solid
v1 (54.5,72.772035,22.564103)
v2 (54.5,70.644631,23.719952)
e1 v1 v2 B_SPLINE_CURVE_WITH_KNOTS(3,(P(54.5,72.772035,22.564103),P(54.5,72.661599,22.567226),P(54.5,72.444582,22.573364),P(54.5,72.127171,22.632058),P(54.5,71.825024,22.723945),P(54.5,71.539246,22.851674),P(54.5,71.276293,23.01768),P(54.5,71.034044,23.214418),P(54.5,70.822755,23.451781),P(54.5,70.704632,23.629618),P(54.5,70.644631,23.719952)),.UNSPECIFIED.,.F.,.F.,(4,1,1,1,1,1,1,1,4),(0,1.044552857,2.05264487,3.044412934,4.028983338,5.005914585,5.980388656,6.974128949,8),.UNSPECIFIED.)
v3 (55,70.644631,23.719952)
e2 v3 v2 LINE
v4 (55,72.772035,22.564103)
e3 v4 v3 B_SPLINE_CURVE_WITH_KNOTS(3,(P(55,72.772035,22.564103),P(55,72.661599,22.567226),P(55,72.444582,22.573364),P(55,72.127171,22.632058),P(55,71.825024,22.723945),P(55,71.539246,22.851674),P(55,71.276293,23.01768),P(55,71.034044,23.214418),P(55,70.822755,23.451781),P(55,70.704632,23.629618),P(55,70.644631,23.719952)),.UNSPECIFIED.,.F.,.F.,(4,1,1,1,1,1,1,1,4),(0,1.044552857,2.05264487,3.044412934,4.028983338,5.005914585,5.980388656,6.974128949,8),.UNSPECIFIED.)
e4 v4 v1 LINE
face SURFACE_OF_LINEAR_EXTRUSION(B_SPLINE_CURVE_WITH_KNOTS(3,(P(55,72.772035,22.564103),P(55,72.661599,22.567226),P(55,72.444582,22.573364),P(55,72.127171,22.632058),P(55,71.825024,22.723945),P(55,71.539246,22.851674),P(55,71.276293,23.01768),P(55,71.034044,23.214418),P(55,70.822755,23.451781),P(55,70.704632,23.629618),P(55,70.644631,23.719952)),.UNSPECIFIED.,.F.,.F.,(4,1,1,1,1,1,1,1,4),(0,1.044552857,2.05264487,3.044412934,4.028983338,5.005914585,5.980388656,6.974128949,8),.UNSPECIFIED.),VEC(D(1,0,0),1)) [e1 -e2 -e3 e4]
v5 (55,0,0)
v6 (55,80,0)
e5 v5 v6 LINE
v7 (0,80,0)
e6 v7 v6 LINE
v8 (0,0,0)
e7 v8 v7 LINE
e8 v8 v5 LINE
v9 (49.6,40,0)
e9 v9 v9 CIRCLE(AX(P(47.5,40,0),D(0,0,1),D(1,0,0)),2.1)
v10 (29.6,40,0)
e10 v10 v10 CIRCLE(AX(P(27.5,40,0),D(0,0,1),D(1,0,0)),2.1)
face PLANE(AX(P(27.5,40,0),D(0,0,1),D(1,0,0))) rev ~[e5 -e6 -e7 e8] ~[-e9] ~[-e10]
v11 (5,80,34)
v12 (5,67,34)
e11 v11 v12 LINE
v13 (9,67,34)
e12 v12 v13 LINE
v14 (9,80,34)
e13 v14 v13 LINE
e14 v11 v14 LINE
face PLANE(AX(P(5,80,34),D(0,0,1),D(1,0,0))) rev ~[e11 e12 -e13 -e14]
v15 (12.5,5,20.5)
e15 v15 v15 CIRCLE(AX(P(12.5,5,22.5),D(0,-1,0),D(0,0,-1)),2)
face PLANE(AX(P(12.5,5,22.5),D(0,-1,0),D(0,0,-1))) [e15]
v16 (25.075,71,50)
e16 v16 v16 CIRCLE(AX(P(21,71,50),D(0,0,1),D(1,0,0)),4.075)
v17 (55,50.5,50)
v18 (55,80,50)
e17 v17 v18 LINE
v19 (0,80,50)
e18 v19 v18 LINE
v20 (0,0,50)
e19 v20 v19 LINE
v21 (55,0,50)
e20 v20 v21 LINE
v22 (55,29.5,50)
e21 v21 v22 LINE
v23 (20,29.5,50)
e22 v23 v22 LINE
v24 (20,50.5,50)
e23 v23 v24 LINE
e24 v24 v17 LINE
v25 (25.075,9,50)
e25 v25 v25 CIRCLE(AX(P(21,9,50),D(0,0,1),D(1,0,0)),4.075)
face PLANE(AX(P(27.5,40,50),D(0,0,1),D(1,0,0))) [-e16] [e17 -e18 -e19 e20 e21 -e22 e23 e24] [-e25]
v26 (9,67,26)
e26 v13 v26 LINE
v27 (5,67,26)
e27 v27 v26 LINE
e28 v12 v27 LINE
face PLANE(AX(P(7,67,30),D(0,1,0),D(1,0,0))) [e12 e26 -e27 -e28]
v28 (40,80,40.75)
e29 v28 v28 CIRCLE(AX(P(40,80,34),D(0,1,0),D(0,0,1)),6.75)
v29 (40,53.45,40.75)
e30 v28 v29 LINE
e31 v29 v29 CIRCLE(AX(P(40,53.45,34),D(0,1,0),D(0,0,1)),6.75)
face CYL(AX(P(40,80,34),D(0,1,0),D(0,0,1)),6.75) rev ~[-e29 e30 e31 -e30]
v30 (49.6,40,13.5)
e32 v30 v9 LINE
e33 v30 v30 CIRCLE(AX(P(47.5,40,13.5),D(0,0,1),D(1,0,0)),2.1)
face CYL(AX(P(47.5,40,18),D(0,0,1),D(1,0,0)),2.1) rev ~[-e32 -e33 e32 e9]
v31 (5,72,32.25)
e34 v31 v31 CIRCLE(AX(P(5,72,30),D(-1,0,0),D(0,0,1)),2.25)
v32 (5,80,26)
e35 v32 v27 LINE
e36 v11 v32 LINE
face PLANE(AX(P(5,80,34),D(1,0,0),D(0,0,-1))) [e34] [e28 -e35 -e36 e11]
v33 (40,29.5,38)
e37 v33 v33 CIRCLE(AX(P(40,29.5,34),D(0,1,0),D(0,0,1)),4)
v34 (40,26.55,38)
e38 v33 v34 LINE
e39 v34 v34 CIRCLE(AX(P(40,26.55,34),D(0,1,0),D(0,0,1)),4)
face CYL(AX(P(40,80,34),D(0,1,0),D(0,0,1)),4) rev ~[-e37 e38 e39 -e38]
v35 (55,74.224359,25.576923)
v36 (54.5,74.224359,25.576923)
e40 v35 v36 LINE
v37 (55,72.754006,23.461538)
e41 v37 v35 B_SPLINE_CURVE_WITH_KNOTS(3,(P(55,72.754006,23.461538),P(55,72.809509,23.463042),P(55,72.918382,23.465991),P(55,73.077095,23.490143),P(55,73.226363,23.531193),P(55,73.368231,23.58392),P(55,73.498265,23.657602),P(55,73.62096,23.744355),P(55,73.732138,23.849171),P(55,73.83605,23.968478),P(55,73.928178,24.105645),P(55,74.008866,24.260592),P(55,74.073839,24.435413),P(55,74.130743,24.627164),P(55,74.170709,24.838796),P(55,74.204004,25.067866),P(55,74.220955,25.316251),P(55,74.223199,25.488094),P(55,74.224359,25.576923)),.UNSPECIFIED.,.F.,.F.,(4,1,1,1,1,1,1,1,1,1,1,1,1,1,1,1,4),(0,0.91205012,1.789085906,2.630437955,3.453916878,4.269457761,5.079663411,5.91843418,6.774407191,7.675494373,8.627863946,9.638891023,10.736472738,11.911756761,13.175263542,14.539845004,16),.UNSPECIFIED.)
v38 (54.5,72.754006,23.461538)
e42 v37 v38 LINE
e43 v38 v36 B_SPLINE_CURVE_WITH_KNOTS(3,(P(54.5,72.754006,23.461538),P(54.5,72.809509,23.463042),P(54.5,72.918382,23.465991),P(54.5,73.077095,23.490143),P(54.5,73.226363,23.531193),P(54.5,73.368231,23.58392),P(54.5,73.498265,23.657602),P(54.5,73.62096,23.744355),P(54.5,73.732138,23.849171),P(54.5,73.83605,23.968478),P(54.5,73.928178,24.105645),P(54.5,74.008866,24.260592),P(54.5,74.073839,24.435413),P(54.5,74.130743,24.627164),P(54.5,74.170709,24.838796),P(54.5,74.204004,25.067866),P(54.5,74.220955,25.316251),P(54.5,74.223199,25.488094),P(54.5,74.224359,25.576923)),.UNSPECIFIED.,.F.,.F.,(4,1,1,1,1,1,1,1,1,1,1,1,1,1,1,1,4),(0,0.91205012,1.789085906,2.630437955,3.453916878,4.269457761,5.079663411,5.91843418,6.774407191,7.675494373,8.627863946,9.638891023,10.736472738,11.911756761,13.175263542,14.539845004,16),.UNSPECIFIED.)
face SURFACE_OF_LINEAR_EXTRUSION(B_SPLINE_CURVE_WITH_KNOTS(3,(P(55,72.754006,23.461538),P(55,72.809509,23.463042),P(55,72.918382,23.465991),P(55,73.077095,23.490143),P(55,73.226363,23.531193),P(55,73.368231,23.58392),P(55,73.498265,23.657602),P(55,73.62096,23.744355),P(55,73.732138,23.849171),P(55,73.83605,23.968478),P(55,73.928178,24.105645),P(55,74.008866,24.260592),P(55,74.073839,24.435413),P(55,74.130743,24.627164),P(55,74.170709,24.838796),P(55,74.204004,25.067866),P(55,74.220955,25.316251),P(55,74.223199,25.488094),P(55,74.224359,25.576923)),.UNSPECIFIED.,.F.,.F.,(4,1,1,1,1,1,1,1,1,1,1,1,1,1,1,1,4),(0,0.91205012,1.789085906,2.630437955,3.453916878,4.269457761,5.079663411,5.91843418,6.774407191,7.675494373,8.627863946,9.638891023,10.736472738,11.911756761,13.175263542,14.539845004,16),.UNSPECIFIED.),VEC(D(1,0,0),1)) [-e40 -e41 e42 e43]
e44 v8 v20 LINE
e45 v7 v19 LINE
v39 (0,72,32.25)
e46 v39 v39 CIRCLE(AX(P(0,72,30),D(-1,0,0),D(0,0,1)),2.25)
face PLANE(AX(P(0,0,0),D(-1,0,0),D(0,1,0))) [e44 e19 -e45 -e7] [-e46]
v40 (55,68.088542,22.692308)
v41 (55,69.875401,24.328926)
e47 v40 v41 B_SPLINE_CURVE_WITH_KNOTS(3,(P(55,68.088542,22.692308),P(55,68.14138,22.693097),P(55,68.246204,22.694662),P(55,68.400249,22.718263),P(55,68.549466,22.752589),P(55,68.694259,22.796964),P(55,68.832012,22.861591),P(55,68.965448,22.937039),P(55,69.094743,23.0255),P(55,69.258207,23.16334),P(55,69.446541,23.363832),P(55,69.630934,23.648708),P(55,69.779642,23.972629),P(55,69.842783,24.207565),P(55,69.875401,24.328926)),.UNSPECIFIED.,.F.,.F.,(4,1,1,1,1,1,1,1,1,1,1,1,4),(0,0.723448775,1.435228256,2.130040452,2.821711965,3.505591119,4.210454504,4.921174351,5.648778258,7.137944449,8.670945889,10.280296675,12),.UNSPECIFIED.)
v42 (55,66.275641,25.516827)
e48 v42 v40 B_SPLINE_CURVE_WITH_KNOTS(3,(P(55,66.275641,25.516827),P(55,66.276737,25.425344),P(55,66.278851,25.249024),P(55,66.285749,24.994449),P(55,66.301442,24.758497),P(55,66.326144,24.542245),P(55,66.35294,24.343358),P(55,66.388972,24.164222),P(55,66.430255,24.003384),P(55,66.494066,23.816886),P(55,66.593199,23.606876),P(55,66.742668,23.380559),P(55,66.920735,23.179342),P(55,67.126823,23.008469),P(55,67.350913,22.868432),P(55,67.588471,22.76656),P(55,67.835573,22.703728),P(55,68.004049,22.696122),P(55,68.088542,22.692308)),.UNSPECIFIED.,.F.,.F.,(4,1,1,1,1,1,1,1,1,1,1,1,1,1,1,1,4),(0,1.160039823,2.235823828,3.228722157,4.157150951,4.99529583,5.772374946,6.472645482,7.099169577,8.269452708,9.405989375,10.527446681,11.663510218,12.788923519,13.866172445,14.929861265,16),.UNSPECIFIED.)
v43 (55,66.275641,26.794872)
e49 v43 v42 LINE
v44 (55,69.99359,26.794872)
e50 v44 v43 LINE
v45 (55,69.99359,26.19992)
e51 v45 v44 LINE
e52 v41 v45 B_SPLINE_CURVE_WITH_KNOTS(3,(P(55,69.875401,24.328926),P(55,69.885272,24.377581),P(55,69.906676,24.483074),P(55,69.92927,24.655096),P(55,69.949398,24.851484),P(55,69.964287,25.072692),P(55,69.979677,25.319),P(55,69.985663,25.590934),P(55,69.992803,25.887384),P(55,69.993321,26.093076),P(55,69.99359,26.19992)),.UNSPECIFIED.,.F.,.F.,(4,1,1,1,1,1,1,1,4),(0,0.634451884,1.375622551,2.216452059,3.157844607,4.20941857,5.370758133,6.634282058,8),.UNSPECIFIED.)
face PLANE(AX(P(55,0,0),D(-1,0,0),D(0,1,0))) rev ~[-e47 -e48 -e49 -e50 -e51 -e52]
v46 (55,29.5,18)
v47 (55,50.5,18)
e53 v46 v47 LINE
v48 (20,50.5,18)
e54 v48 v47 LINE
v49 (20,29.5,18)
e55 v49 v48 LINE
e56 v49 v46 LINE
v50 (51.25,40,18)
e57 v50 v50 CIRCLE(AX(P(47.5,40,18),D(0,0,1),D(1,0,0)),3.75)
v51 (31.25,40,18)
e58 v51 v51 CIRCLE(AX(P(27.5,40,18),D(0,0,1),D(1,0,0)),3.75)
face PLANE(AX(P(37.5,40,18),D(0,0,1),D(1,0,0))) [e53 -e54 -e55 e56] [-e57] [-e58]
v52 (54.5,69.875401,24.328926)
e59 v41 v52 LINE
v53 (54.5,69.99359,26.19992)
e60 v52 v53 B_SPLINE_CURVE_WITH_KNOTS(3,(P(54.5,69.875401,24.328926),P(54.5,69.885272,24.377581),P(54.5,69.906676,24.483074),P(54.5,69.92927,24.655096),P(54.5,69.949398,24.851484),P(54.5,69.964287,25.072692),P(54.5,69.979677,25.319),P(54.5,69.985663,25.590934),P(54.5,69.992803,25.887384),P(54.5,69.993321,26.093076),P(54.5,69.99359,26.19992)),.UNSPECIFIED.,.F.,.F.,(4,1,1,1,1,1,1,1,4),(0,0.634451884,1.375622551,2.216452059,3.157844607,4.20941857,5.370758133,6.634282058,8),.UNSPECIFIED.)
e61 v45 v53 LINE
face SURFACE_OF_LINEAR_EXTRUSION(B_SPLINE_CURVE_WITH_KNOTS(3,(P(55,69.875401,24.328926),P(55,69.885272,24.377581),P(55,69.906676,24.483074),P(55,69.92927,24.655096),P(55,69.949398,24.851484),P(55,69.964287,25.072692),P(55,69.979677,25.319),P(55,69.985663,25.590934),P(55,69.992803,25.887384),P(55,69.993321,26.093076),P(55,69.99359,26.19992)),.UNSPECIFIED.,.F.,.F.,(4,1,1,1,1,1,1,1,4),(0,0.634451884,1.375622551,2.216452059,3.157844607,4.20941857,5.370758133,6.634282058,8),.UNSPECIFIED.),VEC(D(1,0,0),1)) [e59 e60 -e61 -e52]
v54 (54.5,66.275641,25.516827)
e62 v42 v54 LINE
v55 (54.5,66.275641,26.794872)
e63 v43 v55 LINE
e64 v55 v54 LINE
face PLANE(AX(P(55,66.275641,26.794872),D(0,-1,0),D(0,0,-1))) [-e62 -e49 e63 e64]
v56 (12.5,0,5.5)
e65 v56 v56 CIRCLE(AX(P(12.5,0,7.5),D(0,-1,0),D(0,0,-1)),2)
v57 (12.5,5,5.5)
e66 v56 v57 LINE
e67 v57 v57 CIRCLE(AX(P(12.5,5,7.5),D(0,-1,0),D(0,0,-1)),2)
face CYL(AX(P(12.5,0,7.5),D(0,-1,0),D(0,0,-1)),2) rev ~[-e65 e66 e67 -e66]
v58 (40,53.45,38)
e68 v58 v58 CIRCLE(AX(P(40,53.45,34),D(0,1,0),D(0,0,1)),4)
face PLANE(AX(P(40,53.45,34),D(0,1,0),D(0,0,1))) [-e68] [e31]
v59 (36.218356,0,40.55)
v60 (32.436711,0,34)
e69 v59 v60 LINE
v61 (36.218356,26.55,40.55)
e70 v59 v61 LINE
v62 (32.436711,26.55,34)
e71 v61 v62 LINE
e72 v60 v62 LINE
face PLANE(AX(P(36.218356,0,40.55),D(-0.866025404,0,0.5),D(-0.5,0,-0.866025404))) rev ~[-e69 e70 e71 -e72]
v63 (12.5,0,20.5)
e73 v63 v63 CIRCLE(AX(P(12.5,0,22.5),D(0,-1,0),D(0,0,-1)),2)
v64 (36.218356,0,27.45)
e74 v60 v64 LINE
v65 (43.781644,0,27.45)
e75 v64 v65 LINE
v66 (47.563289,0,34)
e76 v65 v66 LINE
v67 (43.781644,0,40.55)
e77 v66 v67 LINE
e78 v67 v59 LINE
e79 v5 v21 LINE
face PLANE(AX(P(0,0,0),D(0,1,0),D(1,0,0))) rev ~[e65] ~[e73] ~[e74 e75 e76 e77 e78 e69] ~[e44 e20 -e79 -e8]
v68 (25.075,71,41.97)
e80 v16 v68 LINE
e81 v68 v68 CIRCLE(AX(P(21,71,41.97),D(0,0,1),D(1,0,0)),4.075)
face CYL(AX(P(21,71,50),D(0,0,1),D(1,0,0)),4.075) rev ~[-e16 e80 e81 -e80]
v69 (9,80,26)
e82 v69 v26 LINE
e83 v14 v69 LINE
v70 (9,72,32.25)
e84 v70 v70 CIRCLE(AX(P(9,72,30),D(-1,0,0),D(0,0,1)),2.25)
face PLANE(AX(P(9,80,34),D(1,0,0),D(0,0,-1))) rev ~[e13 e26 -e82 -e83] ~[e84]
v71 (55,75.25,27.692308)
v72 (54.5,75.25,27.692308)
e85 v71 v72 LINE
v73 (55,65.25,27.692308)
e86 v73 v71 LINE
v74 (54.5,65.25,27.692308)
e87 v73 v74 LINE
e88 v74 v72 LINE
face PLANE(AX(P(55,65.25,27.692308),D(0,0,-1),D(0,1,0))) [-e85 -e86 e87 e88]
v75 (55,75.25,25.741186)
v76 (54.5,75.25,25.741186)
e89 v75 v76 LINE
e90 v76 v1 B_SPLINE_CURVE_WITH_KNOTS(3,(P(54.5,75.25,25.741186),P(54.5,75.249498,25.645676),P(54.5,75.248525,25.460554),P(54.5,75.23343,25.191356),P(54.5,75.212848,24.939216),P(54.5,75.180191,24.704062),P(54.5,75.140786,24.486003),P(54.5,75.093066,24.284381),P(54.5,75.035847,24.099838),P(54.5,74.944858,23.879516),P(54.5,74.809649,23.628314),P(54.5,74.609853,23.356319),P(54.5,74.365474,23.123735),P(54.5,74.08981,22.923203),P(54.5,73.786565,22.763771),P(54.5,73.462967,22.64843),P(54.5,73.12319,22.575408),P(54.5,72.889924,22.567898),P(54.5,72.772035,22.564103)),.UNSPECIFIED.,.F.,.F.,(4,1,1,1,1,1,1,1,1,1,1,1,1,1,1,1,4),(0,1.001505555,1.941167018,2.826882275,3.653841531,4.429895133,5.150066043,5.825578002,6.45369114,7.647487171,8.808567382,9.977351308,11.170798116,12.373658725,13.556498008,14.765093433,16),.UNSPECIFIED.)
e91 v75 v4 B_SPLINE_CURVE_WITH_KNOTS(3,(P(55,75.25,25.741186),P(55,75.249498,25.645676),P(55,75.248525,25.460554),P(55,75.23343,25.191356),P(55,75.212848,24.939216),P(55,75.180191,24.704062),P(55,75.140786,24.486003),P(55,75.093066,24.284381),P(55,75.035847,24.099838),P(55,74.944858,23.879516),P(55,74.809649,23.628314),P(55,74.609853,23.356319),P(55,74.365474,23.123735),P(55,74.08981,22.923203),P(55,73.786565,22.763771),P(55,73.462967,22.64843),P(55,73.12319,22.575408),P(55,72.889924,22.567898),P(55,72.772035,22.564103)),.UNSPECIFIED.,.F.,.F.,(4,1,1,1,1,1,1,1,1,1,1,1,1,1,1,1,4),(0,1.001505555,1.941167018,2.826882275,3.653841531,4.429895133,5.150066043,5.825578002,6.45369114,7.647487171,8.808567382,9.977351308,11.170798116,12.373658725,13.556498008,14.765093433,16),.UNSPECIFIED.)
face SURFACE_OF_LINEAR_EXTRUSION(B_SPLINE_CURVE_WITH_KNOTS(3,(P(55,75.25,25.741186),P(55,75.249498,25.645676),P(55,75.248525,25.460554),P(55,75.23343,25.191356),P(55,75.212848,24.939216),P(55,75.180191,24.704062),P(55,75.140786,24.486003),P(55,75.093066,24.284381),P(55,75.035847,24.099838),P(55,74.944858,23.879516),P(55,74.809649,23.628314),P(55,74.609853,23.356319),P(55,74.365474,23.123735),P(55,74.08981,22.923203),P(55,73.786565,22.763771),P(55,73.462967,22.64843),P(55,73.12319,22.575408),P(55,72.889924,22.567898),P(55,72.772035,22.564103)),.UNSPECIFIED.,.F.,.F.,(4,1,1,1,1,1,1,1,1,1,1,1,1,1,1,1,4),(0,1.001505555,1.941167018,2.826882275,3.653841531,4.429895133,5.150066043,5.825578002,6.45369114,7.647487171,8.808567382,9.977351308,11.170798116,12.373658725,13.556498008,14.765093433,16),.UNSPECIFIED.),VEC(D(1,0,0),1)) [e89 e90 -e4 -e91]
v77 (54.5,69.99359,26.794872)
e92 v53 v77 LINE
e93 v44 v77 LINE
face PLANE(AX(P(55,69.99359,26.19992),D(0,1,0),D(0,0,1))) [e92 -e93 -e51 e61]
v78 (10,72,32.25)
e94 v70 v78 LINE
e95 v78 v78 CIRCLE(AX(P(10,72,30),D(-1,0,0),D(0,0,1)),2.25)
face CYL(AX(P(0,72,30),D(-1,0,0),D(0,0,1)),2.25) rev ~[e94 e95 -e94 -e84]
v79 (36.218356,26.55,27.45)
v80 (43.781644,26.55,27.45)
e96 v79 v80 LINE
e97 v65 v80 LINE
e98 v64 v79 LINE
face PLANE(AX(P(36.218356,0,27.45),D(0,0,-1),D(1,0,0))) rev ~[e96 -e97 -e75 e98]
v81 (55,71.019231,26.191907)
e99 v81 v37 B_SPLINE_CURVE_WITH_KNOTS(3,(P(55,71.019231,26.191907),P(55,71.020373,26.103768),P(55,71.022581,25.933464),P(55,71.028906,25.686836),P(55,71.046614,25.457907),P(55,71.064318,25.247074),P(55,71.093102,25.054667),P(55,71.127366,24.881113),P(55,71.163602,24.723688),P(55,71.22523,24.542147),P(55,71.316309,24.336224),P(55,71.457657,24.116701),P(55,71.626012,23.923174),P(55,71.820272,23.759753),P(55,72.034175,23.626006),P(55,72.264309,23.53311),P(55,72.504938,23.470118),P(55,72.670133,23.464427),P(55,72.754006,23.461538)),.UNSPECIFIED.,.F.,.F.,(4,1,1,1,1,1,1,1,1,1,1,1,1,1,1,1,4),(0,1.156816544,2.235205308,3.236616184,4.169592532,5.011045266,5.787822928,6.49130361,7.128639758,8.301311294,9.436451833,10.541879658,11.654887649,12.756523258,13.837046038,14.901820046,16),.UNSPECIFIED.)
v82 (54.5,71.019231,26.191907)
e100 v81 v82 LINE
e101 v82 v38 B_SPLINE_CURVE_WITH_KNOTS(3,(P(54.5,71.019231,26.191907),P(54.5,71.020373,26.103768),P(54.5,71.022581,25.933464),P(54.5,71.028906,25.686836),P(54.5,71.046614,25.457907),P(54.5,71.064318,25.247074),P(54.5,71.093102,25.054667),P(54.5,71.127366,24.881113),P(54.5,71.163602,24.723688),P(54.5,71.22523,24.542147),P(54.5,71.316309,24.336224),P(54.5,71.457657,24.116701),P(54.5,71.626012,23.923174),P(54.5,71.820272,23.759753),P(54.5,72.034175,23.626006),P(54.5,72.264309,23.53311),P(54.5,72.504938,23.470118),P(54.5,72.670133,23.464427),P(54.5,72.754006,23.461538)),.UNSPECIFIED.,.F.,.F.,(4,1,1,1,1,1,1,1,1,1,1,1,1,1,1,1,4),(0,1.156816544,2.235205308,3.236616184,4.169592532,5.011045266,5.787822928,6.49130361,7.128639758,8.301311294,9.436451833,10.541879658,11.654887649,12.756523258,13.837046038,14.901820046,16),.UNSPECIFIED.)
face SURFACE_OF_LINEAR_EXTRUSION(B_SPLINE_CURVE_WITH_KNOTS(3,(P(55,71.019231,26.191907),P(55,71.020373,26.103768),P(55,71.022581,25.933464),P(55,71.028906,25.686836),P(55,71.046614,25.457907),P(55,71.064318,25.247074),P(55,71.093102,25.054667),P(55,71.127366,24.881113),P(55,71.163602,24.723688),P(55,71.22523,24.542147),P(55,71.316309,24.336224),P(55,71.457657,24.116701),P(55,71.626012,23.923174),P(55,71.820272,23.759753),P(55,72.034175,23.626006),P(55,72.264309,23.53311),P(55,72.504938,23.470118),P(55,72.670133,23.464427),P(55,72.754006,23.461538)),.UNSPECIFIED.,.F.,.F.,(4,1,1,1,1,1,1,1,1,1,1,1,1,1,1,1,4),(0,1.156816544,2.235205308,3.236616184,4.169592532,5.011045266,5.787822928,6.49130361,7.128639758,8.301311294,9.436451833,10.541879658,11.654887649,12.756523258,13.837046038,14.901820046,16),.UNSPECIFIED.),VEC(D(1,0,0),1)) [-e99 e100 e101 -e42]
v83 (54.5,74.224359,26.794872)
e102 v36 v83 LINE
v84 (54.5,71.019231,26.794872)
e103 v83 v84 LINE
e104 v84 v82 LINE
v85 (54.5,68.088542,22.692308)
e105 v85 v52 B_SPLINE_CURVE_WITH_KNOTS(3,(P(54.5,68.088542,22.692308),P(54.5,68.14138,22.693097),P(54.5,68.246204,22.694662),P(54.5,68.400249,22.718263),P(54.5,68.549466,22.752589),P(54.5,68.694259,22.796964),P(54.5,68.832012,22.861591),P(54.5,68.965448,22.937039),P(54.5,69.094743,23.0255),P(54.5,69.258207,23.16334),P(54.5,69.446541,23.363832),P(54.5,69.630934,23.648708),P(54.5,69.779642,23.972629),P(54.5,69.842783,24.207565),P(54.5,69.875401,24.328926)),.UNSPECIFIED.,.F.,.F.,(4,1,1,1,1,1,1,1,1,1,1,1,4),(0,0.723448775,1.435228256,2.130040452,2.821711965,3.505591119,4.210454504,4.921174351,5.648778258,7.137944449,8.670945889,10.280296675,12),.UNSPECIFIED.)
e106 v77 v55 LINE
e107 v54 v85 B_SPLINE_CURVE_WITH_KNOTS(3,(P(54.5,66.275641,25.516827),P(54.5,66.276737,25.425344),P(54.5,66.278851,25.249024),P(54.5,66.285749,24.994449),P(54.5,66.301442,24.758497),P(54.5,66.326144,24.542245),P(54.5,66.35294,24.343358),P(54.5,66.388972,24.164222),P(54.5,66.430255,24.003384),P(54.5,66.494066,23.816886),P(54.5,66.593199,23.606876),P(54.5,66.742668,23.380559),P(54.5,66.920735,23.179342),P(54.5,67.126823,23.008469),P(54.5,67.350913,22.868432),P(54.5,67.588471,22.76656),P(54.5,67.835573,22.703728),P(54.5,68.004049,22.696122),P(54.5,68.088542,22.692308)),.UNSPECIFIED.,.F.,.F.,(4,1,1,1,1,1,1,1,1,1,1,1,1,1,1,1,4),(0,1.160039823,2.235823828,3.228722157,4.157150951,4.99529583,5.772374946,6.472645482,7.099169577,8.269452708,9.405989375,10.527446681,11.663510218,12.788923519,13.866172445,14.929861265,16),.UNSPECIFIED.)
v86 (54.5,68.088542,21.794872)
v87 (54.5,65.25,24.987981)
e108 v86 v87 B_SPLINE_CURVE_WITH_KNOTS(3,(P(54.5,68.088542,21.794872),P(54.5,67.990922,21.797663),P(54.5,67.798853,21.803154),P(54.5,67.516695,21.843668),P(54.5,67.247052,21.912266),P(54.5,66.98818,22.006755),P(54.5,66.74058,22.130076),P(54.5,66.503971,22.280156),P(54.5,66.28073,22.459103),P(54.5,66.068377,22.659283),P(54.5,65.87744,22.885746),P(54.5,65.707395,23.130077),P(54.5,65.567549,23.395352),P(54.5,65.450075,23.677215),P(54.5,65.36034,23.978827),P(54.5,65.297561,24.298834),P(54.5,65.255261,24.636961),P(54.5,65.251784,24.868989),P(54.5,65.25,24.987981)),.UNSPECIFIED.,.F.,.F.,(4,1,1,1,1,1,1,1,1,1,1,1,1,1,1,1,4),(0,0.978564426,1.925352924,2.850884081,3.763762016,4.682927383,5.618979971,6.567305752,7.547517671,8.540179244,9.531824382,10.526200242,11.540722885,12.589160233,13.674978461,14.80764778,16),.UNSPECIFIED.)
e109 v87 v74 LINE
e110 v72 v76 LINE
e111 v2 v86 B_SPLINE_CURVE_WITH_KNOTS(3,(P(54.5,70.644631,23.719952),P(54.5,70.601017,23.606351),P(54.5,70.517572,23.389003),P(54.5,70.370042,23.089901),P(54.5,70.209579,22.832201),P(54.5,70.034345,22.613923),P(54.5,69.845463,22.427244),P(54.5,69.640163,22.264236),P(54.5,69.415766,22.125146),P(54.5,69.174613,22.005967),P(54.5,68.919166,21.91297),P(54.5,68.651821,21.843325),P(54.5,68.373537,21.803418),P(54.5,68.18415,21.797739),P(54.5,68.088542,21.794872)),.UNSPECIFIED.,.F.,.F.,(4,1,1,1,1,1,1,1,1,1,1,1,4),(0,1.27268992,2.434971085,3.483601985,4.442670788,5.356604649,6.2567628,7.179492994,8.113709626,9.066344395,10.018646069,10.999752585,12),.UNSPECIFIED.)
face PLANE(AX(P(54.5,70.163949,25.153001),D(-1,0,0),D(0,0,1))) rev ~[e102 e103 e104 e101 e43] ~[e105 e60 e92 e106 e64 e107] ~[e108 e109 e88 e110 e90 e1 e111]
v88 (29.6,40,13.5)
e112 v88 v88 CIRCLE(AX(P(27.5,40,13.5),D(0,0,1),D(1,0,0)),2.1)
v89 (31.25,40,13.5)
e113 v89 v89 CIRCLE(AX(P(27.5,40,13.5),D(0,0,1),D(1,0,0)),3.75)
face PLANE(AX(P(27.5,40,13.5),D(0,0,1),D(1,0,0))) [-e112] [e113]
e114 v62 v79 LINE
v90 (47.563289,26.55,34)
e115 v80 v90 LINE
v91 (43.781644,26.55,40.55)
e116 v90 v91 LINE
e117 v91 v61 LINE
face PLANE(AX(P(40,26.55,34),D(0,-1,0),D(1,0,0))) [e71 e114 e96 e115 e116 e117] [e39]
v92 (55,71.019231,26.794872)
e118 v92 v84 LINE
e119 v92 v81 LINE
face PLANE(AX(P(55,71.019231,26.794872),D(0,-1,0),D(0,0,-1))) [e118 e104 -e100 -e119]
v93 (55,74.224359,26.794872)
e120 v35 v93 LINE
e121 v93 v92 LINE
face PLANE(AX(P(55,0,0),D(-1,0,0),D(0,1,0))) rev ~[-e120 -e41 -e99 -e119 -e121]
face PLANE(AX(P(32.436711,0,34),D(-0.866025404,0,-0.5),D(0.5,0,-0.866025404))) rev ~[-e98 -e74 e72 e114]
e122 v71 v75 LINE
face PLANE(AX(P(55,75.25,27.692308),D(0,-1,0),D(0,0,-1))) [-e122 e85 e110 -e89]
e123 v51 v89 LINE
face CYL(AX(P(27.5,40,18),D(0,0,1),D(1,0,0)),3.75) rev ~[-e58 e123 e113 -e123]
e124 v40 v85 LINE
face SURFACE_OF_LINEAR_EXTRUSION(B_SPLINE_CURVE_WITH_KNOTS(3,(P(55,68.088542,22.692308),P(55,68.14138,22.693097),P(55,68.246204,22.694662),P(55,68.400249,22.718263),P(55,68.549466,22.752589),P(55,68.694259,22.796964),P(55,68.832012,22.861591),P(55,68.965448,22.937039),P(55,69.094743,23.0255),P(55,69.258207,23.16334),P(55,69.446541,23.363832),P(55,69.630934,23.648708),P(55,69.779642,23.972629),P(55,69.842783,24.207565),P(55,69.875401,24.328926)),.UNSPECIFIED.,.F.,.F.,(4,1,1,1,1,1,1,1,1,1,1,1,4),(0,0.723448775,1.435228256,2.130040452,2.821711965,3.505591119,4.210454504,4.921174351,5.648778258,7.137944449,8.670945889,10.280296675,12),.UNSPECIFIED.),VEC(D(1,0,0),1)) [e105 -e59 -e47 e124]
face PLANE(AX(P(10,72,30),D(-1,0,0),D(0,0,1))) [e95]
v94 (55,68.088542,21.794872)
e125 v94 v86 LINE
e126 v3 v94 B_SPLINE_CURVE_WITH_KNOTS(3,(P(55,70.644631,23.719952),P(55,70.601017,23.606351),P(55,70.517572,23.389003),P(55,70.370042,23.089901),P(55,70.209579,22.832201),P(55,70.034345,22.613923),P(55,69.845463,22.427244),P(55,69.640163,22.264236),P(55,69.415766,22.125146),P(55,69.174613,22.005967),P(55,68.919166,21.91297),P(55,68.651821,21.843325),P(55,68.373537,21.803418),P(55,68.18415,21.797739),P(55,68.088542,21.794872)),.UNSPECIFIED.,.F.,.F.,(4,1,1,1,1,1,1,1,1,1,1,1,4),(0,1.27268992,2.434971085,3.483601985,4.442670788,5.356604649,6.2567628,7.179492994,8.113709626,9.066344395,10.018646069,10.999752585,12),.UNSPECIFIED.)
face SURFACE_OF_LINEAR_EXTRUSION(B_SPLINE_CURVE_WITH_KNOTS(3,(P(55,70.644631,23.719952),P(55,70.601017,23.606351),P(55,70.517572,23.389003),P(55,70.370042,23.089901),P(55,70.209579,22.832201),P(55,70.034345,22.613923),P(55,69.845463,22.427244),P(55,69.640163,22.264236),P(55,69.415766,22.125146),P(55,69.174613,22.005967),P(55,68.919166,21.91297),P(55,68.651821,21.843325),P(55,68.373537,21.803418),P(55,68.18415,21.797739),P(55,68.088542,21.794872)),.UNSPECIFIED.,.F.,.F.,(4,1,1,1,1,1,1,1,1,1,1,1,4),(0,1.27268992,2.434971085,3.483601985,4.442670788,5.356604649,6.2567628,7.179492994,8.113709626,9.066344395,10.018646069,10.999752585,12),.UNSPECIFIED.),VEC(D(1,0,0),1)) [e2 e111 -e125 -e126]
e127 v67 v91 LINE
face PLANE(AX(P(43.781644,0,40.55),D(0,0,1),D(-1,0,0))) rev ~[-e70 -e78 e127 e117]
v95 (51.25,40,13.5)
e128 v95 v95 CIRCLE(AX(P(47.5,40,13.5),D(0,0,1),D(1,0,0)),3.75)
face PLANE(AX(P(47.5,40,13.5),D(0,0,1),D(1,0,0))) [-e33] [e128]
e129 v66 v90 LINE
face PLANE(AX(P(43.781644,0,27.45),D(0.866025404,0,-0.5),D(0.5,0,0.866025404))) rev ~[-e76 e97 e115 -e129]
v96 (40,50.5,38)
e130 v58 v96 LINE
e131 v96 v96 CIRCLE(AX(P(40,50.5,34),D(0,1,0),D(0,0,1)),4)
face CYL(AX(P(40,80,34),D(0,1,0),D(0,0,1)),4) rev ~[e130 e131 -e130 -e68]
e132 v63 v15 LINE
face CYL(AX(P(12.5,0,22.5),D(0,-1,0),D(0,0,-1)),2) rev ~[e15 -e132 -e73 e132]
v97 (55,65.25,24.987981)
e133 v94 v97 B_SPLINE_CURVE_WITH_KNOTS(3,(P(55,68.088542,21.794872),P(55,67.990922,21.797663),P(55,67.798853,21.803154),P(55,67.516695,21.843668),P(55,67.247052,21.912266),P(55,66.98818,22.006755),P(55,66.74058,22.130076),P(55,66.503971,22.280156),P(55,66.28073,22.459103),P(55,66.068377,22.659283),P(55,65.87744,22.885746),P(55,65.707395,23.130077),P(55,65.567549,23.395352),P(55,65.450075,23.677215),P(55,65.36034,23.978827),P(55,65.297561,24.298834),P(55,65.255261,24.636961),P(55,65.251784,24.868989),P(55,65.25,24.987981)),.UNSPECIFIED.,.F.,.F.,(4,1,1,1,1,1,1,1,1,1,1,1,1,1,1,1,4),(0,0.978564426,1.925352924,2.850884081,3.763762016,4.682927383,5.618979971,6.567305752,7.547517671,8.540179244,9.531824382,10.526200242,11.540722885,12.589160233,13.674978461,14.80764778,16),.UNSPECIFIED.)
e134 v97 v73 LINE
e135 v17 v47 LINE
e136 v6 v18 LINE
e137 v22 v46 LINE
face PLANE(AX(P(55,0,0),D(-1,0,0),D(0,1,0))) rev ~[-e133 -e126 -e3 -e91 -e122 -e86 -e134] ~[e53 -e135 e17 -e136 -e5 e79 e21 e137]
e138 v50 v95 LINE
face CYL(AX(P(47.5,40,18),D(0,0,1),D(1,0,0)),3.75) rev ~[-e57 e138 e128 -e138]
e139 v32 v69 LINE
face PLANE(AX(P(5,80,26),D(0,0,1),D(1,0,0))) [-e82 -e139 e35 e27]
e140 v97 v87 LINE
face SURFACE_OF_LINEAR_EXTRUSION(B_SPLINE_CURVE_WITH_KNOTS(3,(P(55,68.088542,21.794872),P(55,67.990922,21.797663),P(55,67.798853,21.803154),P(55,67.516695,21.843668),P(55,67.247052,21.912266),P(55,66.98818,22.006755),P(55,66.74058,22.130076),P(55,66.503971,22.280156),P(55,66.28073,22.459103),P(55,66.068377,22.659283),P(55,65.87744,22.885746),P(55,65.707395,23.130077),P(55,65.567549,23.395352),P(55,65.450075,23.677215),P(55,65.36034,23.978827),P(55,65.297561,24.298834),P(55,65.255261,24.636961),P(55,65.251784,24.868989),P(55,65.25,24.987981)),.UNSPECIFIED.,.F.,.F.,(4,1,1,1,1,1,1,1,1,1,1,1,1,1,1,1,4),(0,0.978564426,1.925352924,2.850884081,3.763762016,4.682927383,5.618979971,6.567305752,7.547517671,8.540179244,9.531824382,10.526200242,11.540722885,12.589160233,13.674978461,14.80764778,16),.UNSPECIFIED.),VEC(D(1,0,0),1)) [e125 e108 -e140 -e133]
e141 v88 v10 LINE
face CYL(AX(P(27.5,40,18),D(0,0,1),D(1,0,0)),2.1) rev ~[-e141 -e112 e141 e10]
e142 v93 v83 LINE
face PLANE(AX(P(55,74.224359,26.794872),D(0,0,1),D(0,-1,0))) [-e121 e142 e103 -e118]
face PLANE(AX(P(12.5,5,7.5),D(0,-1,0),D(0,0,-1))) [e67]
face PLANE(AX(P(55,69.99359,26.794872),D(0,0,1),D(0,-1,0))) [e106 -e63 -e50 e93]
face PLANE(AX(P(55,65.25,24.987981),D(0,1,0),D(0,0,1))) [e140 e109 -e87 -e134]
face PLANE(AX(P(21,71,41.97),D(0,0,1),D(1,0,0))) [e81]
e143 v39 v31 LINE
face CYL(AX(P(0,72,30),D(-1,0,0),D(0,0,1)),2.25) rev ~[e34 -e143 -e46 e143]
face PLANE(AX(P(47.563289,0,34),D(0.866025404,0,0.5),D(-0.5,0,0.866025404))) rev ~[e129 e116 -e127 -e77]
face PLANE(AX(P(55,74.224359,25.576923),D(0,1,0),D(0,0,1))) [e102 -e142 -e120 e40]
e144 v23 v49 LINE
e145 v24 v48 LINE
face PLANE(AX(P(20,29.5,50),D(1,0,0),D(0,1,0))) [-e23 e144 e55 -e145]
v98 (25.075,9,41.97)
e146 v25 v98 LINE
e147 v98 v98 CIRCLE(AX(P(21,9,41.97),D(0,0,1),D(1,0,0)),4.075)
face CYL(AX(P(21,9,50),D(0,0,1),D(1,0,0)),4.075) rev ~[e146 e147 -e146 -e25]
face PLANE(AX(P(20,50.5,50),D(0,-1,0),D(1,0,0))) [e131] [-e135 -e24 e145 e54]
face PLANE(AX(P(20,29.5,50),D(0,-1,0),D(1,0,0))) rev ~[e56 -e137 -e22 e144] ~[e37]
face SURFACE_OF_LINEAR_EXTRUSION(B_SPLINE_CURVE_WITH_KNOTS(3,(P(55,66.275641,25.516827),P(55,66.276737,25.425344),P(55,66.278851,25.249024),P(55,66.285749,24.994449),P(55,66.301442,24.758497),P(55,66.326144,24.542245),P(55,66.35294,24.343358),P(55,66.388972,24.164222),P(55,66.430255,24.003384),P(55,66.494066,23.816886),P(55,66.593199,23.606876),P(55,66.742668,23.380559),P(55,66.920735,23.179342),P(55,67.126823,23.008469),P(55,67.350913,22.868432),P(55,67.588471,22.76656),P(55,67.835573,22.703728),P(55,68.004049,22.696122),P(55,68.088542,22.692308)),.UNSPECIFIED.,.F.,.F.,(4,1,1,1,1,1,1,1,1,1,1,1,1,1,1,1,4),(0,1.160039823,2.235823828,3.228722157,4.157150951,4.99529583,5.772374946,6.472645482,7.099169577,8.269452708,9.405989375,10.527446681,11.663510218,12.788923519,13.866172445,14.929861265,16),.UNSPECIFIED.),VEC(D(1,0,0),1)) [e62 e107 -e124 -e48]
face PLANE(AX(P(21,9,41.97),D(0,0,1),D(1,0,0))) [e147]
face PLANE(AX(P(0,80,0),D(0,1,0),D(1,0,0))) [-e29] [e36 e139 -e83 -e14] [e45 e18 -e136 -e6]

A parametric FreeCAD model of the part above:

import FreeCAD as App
import Part
import Sketcher
from FreeCAD import Vector
Q = App.Units.Quantity


def add_polygon(sketch, points):
    """Adds a closed chain of lines whose ends are joined by coincident constraints."""
    first, n = sketch.GeometryCount, len(points)
    for a, b in zip(points, points[1:] + points[:1]):
        sketch.addGeometry(Part.LineSegment(App.Vector(*a, 0), App.Vector(*b, 0)), False)
    for i in range(n):
        sketch.addConstraint(Sketcher.Constraint("Coincident", first + i, 2, first + (i + 1) % n, 1))

doc = App.newDocument("Part")
body = doc.addObject("PartDesign::Body", "Body")

# Sketch on XY plane
sketch1 = body.newObject("Sketcher::SketchObject", "Sketch")
sketch1.AttachmentSupport = (doc.getObject("XY_Plane"), [""])
sketch1.MapMode = "FlatFace"
add_polygon(sketch1, [(0, 80), (0, 0), (55, 0), (55, 80)])  # lines 0-3
sketch1.addConstraint(Sketcher.Constraint("Vertical", 0))
sketch1.addConstraint(Sketcher.Constraint("Horizontal", 1))
sketch1.addConstraint(Sketcher.Constraint("Vertical", 2))
sketch1.addConstraint(Sketcher.Constraint("Horizontal", 3))
sketch1.addConstraint(Sketcher.Constraint("Coincident", 0, 2, -1, 1))
sketch1.addConstraint(Sketcher.Constraint("DistanceX", 1, 1, 1, 2, 55.0))
sketch1.addConstraint(Sketcher.Constraint("DistanceY", 0, 2, 0, 1, 80.0))
pad1 = body.newObject("PartDesign::Pad", "Pad")
pad1.Profile = sketch1
pad1.Length = 50

# Sketch on XZ plane
sketch2 = body.newObject("Sketcher::SketchObject", "Sketch001")
sketch2.AttachmentSupport = (doc.getObject("XZ_Plane"), [""])
sketch2.MapMode = "FlatFace"
sketch2.AttachmentOffset = App.Placement(Vector(0, 0, -80), App.Rotation())
sketch2.addGeometry(Part.Circle(Vector(40, 34, 0), Vector(0, 0, 1), 4), False)
sketch2.addConstraint(Sketcher.Constraint("Diameter", 0, 8.0))
sketch2.addConstraint(Sketcher.Constraint("DistanceX", -1, 1, 0, 3, 40.0))
sketch2.addConstraint(Sketcher.Constraint("DistanceY", -1, 1, 0, 3, 34.0))
pocket1 = body.newObject("PartDesign::Pocket", "Pocket")
pocket1.Profile = sketch2
pocket1.Type = "ThroughAll"
pocket1.Reversed = True

# Sketch on XY plane
sketch3 = body.newObject("Sketcher::SketchObject", "Sketch002")
sketch3.AttachmentSupport = (doc.getObject("XY_Plane"), [""])
sketch3.MapMode = "FlatFace"
sketch3.AttachmentOffset = App.Placement(Vector(0, 0, 50), App.Rotation())
sketch3.addGeometry(Part.Circle(Vector(21, 71, 0), Vector(0, 0, 1), 4.1), False)
sketch3.addGeometry(Part.Circle(Vector(21, 9, 0), Vector(0, 0, 1), 4.1), False)
sketch3.addConstraint(Sketcher.Constraint("Equal", 0, 1))
sketch3.addConstraint(Sketcher.Constraint("Vertical", 0, 3, 1, 3))
sketch3.addConstraint(Sketcher.Constraint("Diameter", 0, 8.15))
sketch3.addConstraint(Sketcher.Constraint("DistanceX", -1, 1, 0, 3, 21.0))
sketch3.addConstraint(Sketcher.Constraint("DistanceY", -1, 1, 0, 3, 71.0))
sketch3.addConstraint(Sketcher.Constraint("DistanceY", -1, 1, 1, 3, 9.0))
pocket2 = body.newObject("PartDesign::Pocket", "Pocket001")
pocket2.Profile = sketch3
pocket2.Length = 8.03

# Sketch on XY plane
sketch4 = body.newObject("Sketcher::SketchObject", "Sketch003")
sketch4.AttachmentSupport = (doc.getObject("XY_Plane"), [""])
sketch4.MapMode = "FlatFace"
sketch4.AttachmentOffset = App.Placement(Vector(0, 0, 50), App.Rotation())
add_polygon(sketch4, [(20, 50), (20, 30), (55, 30), (55, 50)])  # lines 0-3
sketch4.addConstraint(Sketcher.Constraint("Vertical", 0))
sketch4.addConstraint(Sketcher.Constraint("Horizontal", 1))
sketch4.addConstraint(Sketcher.Constraint("Vertical", 2))
sketch4.addConstraint(Sketcher.Constraint("Horizontal", 3))
sketch4.addConstraint(Sketcher.Constraint("DistanceX", 1, 1, 1, 2, 35.0))
sketch4.addConstraint(Sketcher.Constraint("DistanceY", 0, 2, 0, 1, 21.0))
sketch4.addConstraint(Sketcher.Constraint("DistanceX", -1, 1, 0, 2, 20.0))
sketch4.addConstraint(Sketcher.Constraint("DistanceY", -1, 1, 0, 2, 29.5))
pocket3 = body.newObject("PartDesign::Pocket", "Pocket002")
pocket3.Profile = sketch4
pocket3.Length = 32

# Sketch on XZ plane
sketch5 = body.newObject("Sketcher::SketchObject", "Sketch004")
sketch5.AttachmentSupport = (doc.getObject("XZ_Plane"), [""])
sketch5.MapMode = "FlatFace"
sketch5.AttachmentOffset = App.Placement(Vector(0, 0, -80), App.Rotation())
sketch5.addGeometry(Part.Circle(Vector(40, 34, 0), Vector(0, 0, 1), 7), False)
sketch5.addConstraint(Sketcher.Constraint("Diameter", 0, 13.5))
sketch5.addConstraint(Sketcher.Constraint("DistanceX", -1, 1, 0, 3, 40.0))
sketch5.addConstraint(Sketcher.Constraint("DistanceY", -1, 1, 0, 3, 34.0))
pocket4 = body.newObject("PartDesign::Pocket", "Pocket003")
pocket4.Profile = sketch5
pocket4.Length = 26.55
pocket4.Reversed = True

# Sketch on XZ plane
sketch6 = body.newObject("Sketcher::SketchObject", "Sketch005")
sketch6.AttachmentSupport = (doc.getObject("XZ_Plane"), [""])
sketch6.MapMode = "FlatFace"
add_polygon(sketch6, [(48, 34), (44, 41), (36, 41), (32, 34), (36, 27), (44, 27)])  # lines 0-5
sketch6.addConstraint(Sketcher.Constraint("Horizontal", 1))
sketch6.addConstraint(Sketcher.Constraint("Horizontal", 4))
sketch6.addConstraint(Sketcher.Constraint("Parallel", 0, 3))
sketch6.addConstraint(Sketcher.Constraint("Parallel", 2, 5))
sketch6.addConstraint(Sketcher.Constraint("Horizontal", 2, 2, 5, 2))
sketch6.addConstraint(Sketcher.Constraint("Vertical", 1, 2, 3, 2))
sketch6.addConstraint(Sketcher.Constraint("Vertical", 0, 2, 4, 2))
sketch6.addConstraint(Sketcher.Constraint("Angle", 0, Q("120 deg")))
sketch6.addConstraint(Sketcher.Constraint("DistanceY", -1, 1, 2, 2, 34.0))
sketch6.addConstraint(Sketcher.Constraint("DistanceY", 3, 2, 1, 2, 13.1))
sketch6.addConstraint(Sketcher.Constraint("DistanceX", 1, 2, 1, 1, 7.563289))
sketch6.addConstraint(Sketcher.Constraint("DistanceX", -1, 1, 2, 2, 32.436711))
pocket5 = body.newObject("PartDesign::Pocket", "Pocket004")
pocket5.Profile = sketch6
pocket5.Length = 26.55

# Sketch on XZ plane
sketch7 = body.newObject("Sketcher::SketchObject", "Sketch006")
sketch7.AttachmentSupport = (doc.getObject("XZ_Plane"), [""])
sketch7.MapMode = "FlatFace"
sketch7.addGeometry(Part.Circle(Vector(12.5, 7.5, 0), Vector(0, 0, 1), 2), False)
sketch7.addGeometry(Part.Circle(Vector(12.5, 22.5, 0), Vector(0, 0, 1), 2), False)
sketch7.addConstraint(Sketcher.Constraint("Equal", 0, 1))
sketch7.addConstraint(Sketcher.Constraint("Vertical", 0, 3, 1, 3))
sketch7.addConstraint(Sketcher.Constraint("Diameter", 0, 4.0))
sketch7.addConstraint(Sketcher.Constraint("DistanceY", 0, 3, 1, 3, 15.0))
sketch7.addConstraint(Sketcher.Constraint("DistanceX", -1, 1, 0, 3, 12.5))
sketch7.addConstraint(Sketcher.Constraint("DistanceY", -1, 1, 0, 3, 7.5))
pocket6 = body.newObject("PartDesign::Pocket", "Pocket005")
pocket6.Profile = sketch7
pocket6.Length = 5

# Sketch on XY plane
sketch8 = body.newObject("Sketcher::SketchObject", "Sketch007")
sketch8.AttachmentSupport = (doc.getObject("XY_Plane"), [""])
sketch8.MapMode = "FlatFace"
sketch8.AttachmentOffset = App.Placement(Vector(0, 0, 18), App.Rotation())
sketch8.addGeometry(Part.Circle(Vector(27.5, 40, 0), Vector(0, 0, 1), 2.1), False)
sketch8.addGeometry(Part.Circle(Vector(47.5, 40, 0), Vector(0, 0, 1), 2.1), False)
sketch8.addConstraint(Sketcher.Constraint("Equal", 0, 1))
sketch8.addConstraint(Sketcher.Constraint("Horizontal", 0, 3, 1, 3))
sketch8.addConstraint(Sketcher.Constraint("Diameter", 0, 4.2))
sketch8.addConstraint(Sketcher.Constraint("DistanceY", -1, 1, 0, 3, 40.0))
sketch8.addConstraint(Sketcher.Constraint("DistanceX", 0, 3, 1, 3, 20.0))
sketch8.addConstraint(Sketcher.Constraint("DistanceX", -1, 1, 0, 3, 27.5))
pocket7 = body.newObject("PartDesign::Pocket", "Pocket006")
pocket7.Profile = sketch8
pocket7.Type = "ThroughAll"

# Sketch on XY plane
sketch9 = body.newObject("Sketcher::SketchObject", "Sketch008")
sketch9.AttachmentSupport = (doc.getObject("XY_Plane"), [""])
sketch9.MapMode = "FlatFace"
sketch9.AttachmentOffset = App.Placement(Vector(0, 0, 18), App.Rotation())
sketch9.addGeometry(Part.Circle(Vector(27.5, 40, 0), Vector(0, 0, 1), 3.8), False)
sketch9.addGeometry(Part.Circle(Vector(47.5, 40, 0), Vector(0, 0, 1), 3.8), False)
sketch9.addConstraint(Sketcher.Constraint("Equal", 0, 1))
sketch9.addConstraint(Sketcher.Constraint("Horizontal", 0, 3, 1, 3))
sketch9.addConstraint(Sketcher.Constraint("Diameter", 0, 7.5))
sketch9.addConstraint(Sketcher.Constraint("DistanceY", -1, 1, 0, 3, 40.0))
sketch9.addConstraint(Sketcher.Constraint("DistanceX", 0, 3, 1, 3, 20.0))
sketch9.addConstraint(Sketcher.Constraint("DistanceX", -1, 1, 0, 3, 27.5))
pocket8 = body.newObject("PartDesign::Pocket", "Pocket007")
pocket8.Profile = sketch9
pocket8.Length = 4.5

# Sketch on YZ plane
sketch10 = body.newObject("Sketcher::SketchObject", "Sketch009")
sketch10.AttachmentSupport = (doc.getObject("YZ_Plane"), [""])
sketch10.MapMode = "FlatFace"
sketch10.addGeometry(Part.Circle(Vector(72, 30, 0), Vector(0, 0, 1), 2.2), False)
sketch10.addConstraint(Sketcher.Constraint("Diameter", 0, 4.5))
sketch10.addConstraint(Sketcher.Constraint("DistanceX", -1, 1, 0, 3, 72.0))
sketch10.addConstraint(Sketcher.Constraint("DistanceY", -1, 1, 0, 3, 30.0))
pocket9 = body.newObject("PartDesign::Pocket", "Pocket008")
pocket9.Profile = sketch10
pocket9.Length = 10
pocket9.Reversed = True

# Sketch on XZ plane
sketch11 = body.newObject("Sketcher::SketchObject", "Sketch010")
sketch11.AttachmentSupport = (doc.getObject("XZ_Plane"), [""])
sketch11.MapMode = "FlatFace"
sketch11.AttachmentOffset = App.Placement(Vector(0, 0, -80), App.Rotation())
add_polygon(sketch11, [(5, 26), (5, 34), (9, 34), (9, 26)])  # lines 0-3
sketch11.addConstraint(Sketcher.Constraint("Vertical", 0))
sketch11.addConstraint(Sketcher.Constraint("Horizontal", 1))
sketch11.addConstraint(Sketcher.Constraint("Vertical", 2))
sketch11.addConstraint(Sketcher.Constraint("Horizontal", 3))
sketch11.addConstraint(Sketcher.Constraint("DistanceX", 1, 1, 1, 2, 4.0))
sketch11.addConstraint(Sketcher.Constraint("DistanceY", 0, 1, 0, 2, 8.0))
sketch11.addConstraint(Sketcher.Constraint("DistanceX", -1, 1, 0, 2, 5.0))
sketch11.addConstraint(Sketcher.Constraint("DistanceY", -1, 1, 0, 2, 34.0))
pocket10 = body.newObject("PartDesign::Pocket", "Pocket009")
pocket10.Profile = sketch11
pocket10.Length = 13
pocket10.Reversed = True

# Sketch on YZ plane
sketch12 = body.newObject("Sketcher::SketchObject", "Sketch011")
sketch12.AttachmentSupport = (doc.getObject("YZ_Plane"), [""])
sketch12.MapMode = "FlatFace"
sketch12.AttachmentOffset = App.Placement(Vector(0, 0, 55), App.Rotation())
sketch12.addGeometry(Part.LineSegment(Vector(75.25, 25.741186, 0), Vector(75.25, 27.692308, 0)), False)
sketch12.addGeometry(Part.LineSegment(Vector(75.25, 27.692308, 0), Vector(65.25, 27.692308, 0)), False)
sketch12.addGeometry(Part.LineSegment(Vector(65.25, 27.692308, 0), Vector(65.25, 24.987981, 0)), False)
sketch12.addGeometry(Part.BSplineCurve([Vector(68.088542, 21.794872, 0), Vector(67.990922, 21.797663, 0), Vector(67.798853, 21.803154, 0), Vector(67.516695, 21.843668, 0), Vector(67.247052, 21.912266, 0), Vector(66.98818, 22.006755, 0), Vector(66.74058, 22.130076, 0), Vector(66.503971, 22.280156, 0), Vector(66.28073, 22.459103, 0), Vector(66.068377, 22.659283, 0), Vector(65.87744, 22.885746, 0), Vector(65.707395, 23.130077, 0), Vector(65.567549, 23.395352, 0), Vector(65.450075, 23.677215, 0), Vector(65.36034, 23.978827, 0), Vector(65.297561, 24.298834, 0), Vector(65.255261, 24.636961, 0), Vector(65.251784, 24.868989, 0), Vector(65.25, 24.987981, 0)], [4, 1, 1, 1, 1, 1, 1, 1, 1, 1, 1, 1, 1, 1, 1, 1, 4], [0, 0.978564426, 1.925352924, 2.850884081, 3.763762016, 4.682927383, 5.618979971, 6.567305752, 7.547517671, 8.540179244, 9.531824382, 10.526200242, 11.540722885, 12.589160233, 13.674978461, 14.80764778, 16], False, 3, [1, 1, 1, 1, 1, 1, 1, 1, 1, 1, 1, 1, 1, 1, 1, 1, 1, 1, 1], False), False)
sketch12.addGeometry(Part.BSplineCurve([Vector(70.644631, 23.719952, 0), Vector(70.601017, 23.606351, 0), Vector(70.517572, 23.389003, 0), Vector(70.370042, 23.089901, 0), Vector(70.209579, 22.832201, 0), Vector(70.034345, 22.613923, 0), Vector(69.845463, 22.427244, 0), Vector(69.640163, 22.264236, 0), Vector(69.415766, 22.125146, 0), Vector(69.174613, 22.005967, 0), Vector(68.919166, 21.91297, 0), Vector(68.651821, 21.843325, 0), Vector(68.373537, 21.803418, 0), Vector(68.18415, 21.797739, 0), Vector(68.088542, 21.794872, 0)], [4, 1, 1, 1, 1, 1, 1, 1, 1, 1, 1, 1, 4], [0, 1.27268992, 2.434971085, 3.483601985, 4.442670788, 5.356604649, 6.2567628, 7.179492994, 8.113709626, 9.066344395, 10.018646069, 10.999752585, 12], False, 3, [1, 1, 1, 1, 1, 1, 1, 1, 1, 1, 1, 1, 1, 1, 1], False), False)
sketch12.addGeometry(Part.BSplineCurve([Vector(72.772035, 22.564103, 0), Vector(72.661599, 22.567226, 0), Vector(72.444582, 22.573364, 0), Vector(72.127171, 22.632058, 0), Vector(71.825024, 22.723945, 0), Vector(71.539246, 22.851674, 0), Vector(71.276293, 23.01768, 0), Vector(71.034044, 23.214418, 0), Vector(70.822755, 23.451781, 0), Vector(70.704632, 23.629618, 0), Vector(70.644631, 23.719952, 0)], [4, 1, 1, 1, 1, 1, 1, 1, 4], [0, 1.044552857, 2.05264487, 3.044412934, 4.028983338, 5.005914585, 5.980388656, 6.974128949, 8], False, 3, [1, 1, 1, 1, 1, 1, 1, 1, 1, 1, 1], False), False)
sketch12.addGeometry(Part.BSplineCurve([Vector(75.25, 25.741186, 0), Vector(75.249498, 25.645676, 0), Vector(75.248525, 25.460554, 0), Vector(75.23343, 25.191356, 0), Vector(75.212848, 24.939216, 0), Vector(75.180191, 24.704062, 0), Vector(75.140786, 24.486003, 0), Vector(75.093066, 24.284381, 0), Vector(75.035847, 24.099838, 0), Vector(74.944858, 23.879516, 0), Vector(74.809649, 23.628314, 0), Vector(74.609853, 23.356319, 0), Vector(74.365474, 23.123735, 0), Vector(74.08981, 22.923203, 0), Vector(73.786565, 22.763771, 0), Vector(73.462967, 22.64843, 0), Vector(73.12319, 22.575408, 0), Vector(72.889924, 22.567898, 0), Vector(72.772035, 22.564103, 0)], [4, 1, 1, 1, 1, 1, 1, 1, 1, 1, 1, 1, 1, 1, 1, 1, 4], [0, 1.001505555, 1.941167018, 2.826882275, 3.653841531, 4.429895133, 5.150066043, 5.825578002, 6.45369114, 7.647487171, 8.808567382, 9.977351308, 11.170798116, 12.373658725, 13.556498008, 14.765093433, 16], False, 3, [1, 1, 1, 1, 1, 1, 1, 1, 1, 1, 1, 1, 1, 1, 1, 1, 1, 1, 1], False), False)
sketch12.addGeometry(Part.LineSegment(Vector(69.99359, 26.794872, 0), Vector(69.99359, 26.19992, 0)), False)
sketch12.addGeometry(Part.BSplineCurve([Vector(69.875401, 24.328926, 0), Vector(69.885272, 24.377581, 0), Vector(69.906676, 24.483074, 0), Vector(69.92927, 24.655096, 0), Vector(69.949398, 24.851484, 0), Vector(69.964287, 25.072692, 0), Vector(69.979677, 25.319, 0), Vector(69.985663, 25.590934, 0), Vector(69.992803, 25.887384, 0), Vector(69.993321, 26.093076, 0), Vector(69.99359, 26.19992, 0)], [4, 1, 1, 1, 1, 1, 1, 1, 4], [0, 0.634451884, 1.375622551, 2.216452059, 3.157844607, 4.20941857, 5.370758133, 6.634282058, 8], False, 3, [1, 1, 1, 1, 1, 1, 1, 1, 1, 1, 1], False), False)
sketch12.addGeometry(Part.BSplineCurve([Vector(68.088542, 22.692308, 0), Vector(68.14138, 22.693097, 0), Vector(68.246204, 22.694662, 0), Vector(68.400249, 22.718263, 0), Vector(68.549466, 22.752589, 0), Vector(68.694259, 22.796964, 0), Vector(68.832012, 22.861591, 0), Vector(68.965448, 22.937039, 0), Vector(69.094743, 23.0255, 0), Vector(69.258207, 23.16334, 0), Vector(69.446541, 23.363832, 0), Vector(69.630934, 23.648708, 0), Vector(69.779642, 23.972629, 0), Vector(69.842783, 24.207565, 0), Vector(69.875401, 24.328926, 0)], [4, 1, 1, 1, 1, 1, 1, 1, 1, 1, 1, 1, 4], [0, 0.723448775, 1.435228256, 2.130040452, 2.821711965, 3.505591119, 4.210454504, 4.921174351, 5.648778258, 7.137944449, 8.670945889, 10.280296675, 12], False, 3, [1, 1, 1, 1, 1, 1, 1, 1, 1, 1, 1, 1, 1, 1, 1], False), False)
sketch12.addGeometry(Part.BSplineCurve([Vector(66.275641, 25.516827, 0), Vector(66.276737, 25.425344, 0), Vector(66.278851, 25.249024, 0), Vector(66.285749, 24.994449, 0), Vector(66.301442, 24.758497, 0), Vector(66.326144, 24.542245, 0), Vector(66.35294, 24.343358, 0), Vector(66.388972, 24.164222, 0), Vector(66.430255, 24.003384, 0), Vector(66.494066, 23.816886, 0), Vector(66.593199, 23.606876, 0), Vector(66.742668, 23.380559, 0), Vector(66.920735, 23.179342, 0), Vector(67.126823, 23.008469, 0), Vector(67.350913, 22.868432, 0), Vector(67.588471, 22.76656, 0), Vector(67.835573, 22.703728, 0), Vector(68.004049, 22.696122, 0), Vector(68.088542, 22.692308, 0)], [4, 1, 1, 1, 1, 1, 1, 1, 1, 1, 1, 1, 1, 1, 1, 1, 4], [0, 1.160039823, 2.235823828, 3.228722157, 4.157150951, 4.99529583, 5.772374946, 6.472645482, 7.099169577, 8.269452708, 9.405989375, 10.527446681, 11.663510218, 12.788923519, 13.866172445, 14.929861265, 16], False, 3, [1, 1, 1, 1, 1, 1, 1, 1, 1, 1, 1, 1, 1, 1, 1, 1, 1, 1, 1], False), False)
sketch12.addGeometry(Part.LineSegment(Vector(66.275641, 25.516827, 0), Vector(66.275641, 26.794872, 0)), False)
sketch12.addGeometry(Part.LineSegment(Vector(66.275641, 26.794872, 0), Vector(69.99359, 26.794872, 0)), False)
sketch12.addGeometry(Part.LineSegment(Vector(74.224359, 26.794872, 0), Vector(74.224359, 25.576923, 0)), False)
sketch12.addGeometry(Part.BSplineCurve([Vector(72.754006, 23.461538, 0), Vector(72.809509, 23.463042, 0), Vector(72.918382, 23.465991, 0), Vector(73.077095, 23.490143, 0), Vector(73.226363, 23.531193, 0), Vector(73.368231, 23.58392, 0), Vector(73.498265, 23.657602, 0), Vector(73.62096, 23.744355, 0), Vector(73.732138, 23.849171, 0), Vector(73.83605, 23.968478, 0), Vector(73.928178, 24.105645, 0), Vector(74.008866, 24.260592, 0), Vector(74.073839, 24.435413, 0), Vector(74.130743, 24.627164, 0), Vector(74.170709, 24.838796, 0), Vector(74.204004, 25.067866, 0), Vector(74.220955, 25.316251, 0), Vector(74.223199, 25.488094, 0), Vector(74.224359, 25.576923, 0)], [4, 1, 1, 1, 1, 1, 1, 1, 1, 1, 1, 1, 1, 1, 1, 1, 4], [0, 0.91205012, 1.789085906, 2.630437955, 3.453916878, 4.269457761, 5.079663411, 5.91843418, 6.774407191, 7.675494373, 8.627863946, 9.638891023, 10.736472738, 11.911756761, 13.175263542, 14.539845004, 16], False, 3, [1, 1, 1, 1, 1, 1, 1, 1, 1, 1, 1, 1, 1, 1, 1, 1, 1, 1, 1], False), False)
sketch12.addGeometry(Part.BSplineCurve([Vector(71.019231, 26.191907, 0), Vector(71.020373, 26.103768, 0), Vector(71.022581, 25.933464, 0), Vector(71.028906, 25.686836, 0), Vector(71.046614, 25.457907, 0), Vector(71.064318, 25.247074, 0), Vector(71.093102, 25.054667, 0), Vector(71.127366, 24.881113, 0), Vector(71.163602, 24.723688, 0), Vector(71.22523, 24.542147, 0), Vector(71.316309, 24.336224, 0), Vector(71.457657, 24.116701, 0), Vector(71.626012, 23.923174, 0), Vector(71.820272, 23.759753, 0), Vector(72.034175, 23.626006, 0), Vector(72.264309, 23.53311, 0), Vector(72.504938, 23.470118, 0), Vector(72.670133, 23.464427, 0), Vector(72.754006, 23.461538, 0)], [4, 1, 1, 1, 1, 1, 1, 1, 1, 1, 1, 1, 1, 1, 1, 1, 4], [0, 1.156816544, 2.235205308, 3.236616184, 4.169592532, 5.011045266, 5.787822928, 6.49130361, 7.128639758, 8.301311294, 9.436451833, 10.541879658, 11.654887649, 12.756523258, 13.837046038, 14.901820046, 16], False, 3, [1, 1, 1, 1, 1, 1, 1, 1, 1, 1, 1, 1, 1, 1, 1, 1, 1, 1, 1], False), False)
sketch12.addGeometry(Part.LineSegment(Vector(71.019231, 26.191907, 0), Vector(71.019231, 26.794872, 0)), False)
sketch12.addGeometry(Part.LineSegment(Vector(71.019231, 26.794872, 0), Vector(74.224359, 26.794872, 0)), False)
sketch12.addConstraint(Sketcher.Constraint("Block", 3))
sketch12.addConstraint(Sketcher.Constraint("Block", 4))
sketch12.addConstraint(Sketcher.Constraint("Block", 5))
sketch12.addConstraint(Sketcher.Constraint("Block", 6))
sketch12.addConstraint(Sketcher.Constraint("Block", 8))
sketch12.addConstraint(Sketcher.Constraint("Block", 9))
sketch12.addConstraint(Sketcher.Constraint("Block", 10))
sketch12.addConstraint(Sketcher.Constraint("Block", 14))
sketch12.addConstraint(Sketcher.Constraint("Block", 15))
sketch12.addConstraint(Sketcher.Constraint("Coincident", 0, 2, 1, 1))
sketch12.addConstraint(Sketcher.Constraint("Coincident", 1, 2, 2, 1))
sketch12.addConstraint(Sketcher.Constraint("Coincident", 2, 2, 3, 2))
sketch12.addConstraint(Sketcher.Constraint("Coincident", 6, 1, 0, 1))
sketch12.addConstraint(Sketcher.Constraint("Coincident", 7, 2, 8, 2))
sketch12.addConstraint(Sketcher.Constraint("Coincident", 10, 1, 11, 1))
sketch12.addConstraint(Sketcher.Constraint("Coincident", 11, 2, 12, 1))
sketch12.addConstraint(Sketcher.Constraint("Coincident", 12, 2, 7, 1))
sketch12.addConstraint(Sketcher.Constraint("Coincident", 13, 2, 14, 2))
sketch12.addConstraint(Sketcher.Constraint("Coincident", 15, 1, 16, 1))
sketch12.addConstraint(Sketcher.Constraint("Coincident", 16, 2, 17, 1))
sketch12.addConstraint(Sketcher.Constraint("Coincident", 17, 2, 13, 1))
sketch12.addConstraint(Sketcher.Constraint("Vertical", 0))
sketch12.addConstraint(Sketcher.Constraint("Horizontal", 1))
sketch12.addConstraint(Sketcher.Constraint("Vertical", 2))
sketch12.addConstraint(Sketcher.Constraint("Vertical", 7))
sketch12.addConstraint(Sketcher.Constraint("Vertical", 11))
sketch12.addConstraint(Sketcher.Constraint("Horizontal", 12))
sketch12.addConstraint(Sketcher.Constraint("Vertical", 13))
sketch12.addConstraint(Sketcher.Constraint("Vertical", 16))
sketch12.addConstraint(Sketcher.Constraint("Horizontal", 17))
sketch12.addConstraint(Sketcher.Constraint("Horizontal", 12, 2, 16, 2))
sketch12.addConstraint(Sketcher.Constraint("DistanceY", 0, 1, 0, 2, 1.951122))
sketch12.addConstraint(Sketcher.Constraint("DistanceY", 7, 2, 7, 1, 0.594952))
pocket11 = body.newObject("PartDesign::Pocket", "Pocket010")
pocket11.Profile = sketch12
pocket11.Length = 0.5

doc.recompute()
